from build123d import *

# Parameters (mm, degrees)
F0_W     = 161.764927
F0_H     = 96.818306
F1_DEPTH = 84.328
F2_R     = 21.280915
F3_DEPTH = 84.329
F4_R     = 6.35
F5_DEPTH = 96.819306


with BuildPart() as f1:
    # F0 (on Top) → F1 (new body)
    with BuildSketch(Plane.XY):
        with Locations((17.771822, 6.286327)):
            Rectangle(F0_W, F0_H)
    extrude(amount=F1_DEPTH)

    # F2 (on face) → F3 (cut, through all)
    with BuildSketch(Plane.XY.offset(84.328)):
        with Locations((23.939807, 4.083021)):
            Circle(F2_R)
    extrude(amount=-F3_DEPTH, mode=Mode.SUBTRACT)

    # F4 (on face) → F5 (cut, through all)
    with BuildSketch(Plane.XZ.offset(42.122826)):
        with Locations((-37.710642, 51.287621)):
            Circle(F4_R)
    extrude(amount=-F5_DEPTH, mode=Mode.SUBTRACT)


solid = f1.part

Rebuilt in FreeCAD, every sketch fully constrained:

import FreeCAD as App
import Part
import Sketcher
Q = App.Units.Quantity


def add_polygon(sketch, points):
    """Adds a closed chain of lines whose ends are joined by coincident constraints."""
    first, n = sketch.GeometryCount, len(points)
    for a, b in zip(points, points[1:] + points[:1]):
        sketch.addGeometry(Part.LineSegment(App.Vector(*a, 0), App.Vector(*b, 0)), False)
    for i in range(n):
        sketch.addConstraint(Sketcher.Constraint("Coincident", first + i, 2, first + (i + 1) % n, 1))

doc = App.newDocument("Part")
body = doc.addObject("PartDesign::Body", "Body")

sketch1 = body.newObject("Sketcher::SketchObject", "Sketch")
sketch1.AttachmentSupport = (doc.getObject("XY_Plane"), [""])
sketch1.MapMode = "FlatFace"
add_polygon(sketch1, [(-63, 55), (-63, -42), (99, -42), (99, 55)])
sketch1.addConstraint([
    Sketcher.Constraint("Vertical", 0),
    Sketcher.Constraint("Horizontal", 1),
    Sketcher.Constraint("Vertical", 2),
    Sketcher.Constraint("Horizontal", 3),
    Sketcher.Constraint("DistanceX", 1, 1, 1, 2, 161.764927),
    Sketcher.Constraint("DistanceY", 0, 2, 0, 1, 96.818306),
    Sketcher.Constraint("DistanceX", 0, 2, -1, 1, 63.110641),
    Sketcher.Constraint("DistanceY", -1, 1, 2, 2, 54.69548),
])
pad1 = body.newObject("PartDesign::Pad", "Pad")
pad1.Profile = sketch1
pad1.Length = Q("3.32 in")

sketch2 = body.newObject("Sketcher::SketchObject", "Sketch001")
sketch2.AttachmentSupport = (doc.getObject("XY_Plane"), [""])
sketch2.MapMode = "FlatFace"
sketch2.AttachmentOffset = App.Placement(App.Vector(0, 0, 3.32 * 25.4), App.Rotation())
sketch2.addGeometry(Part.Circle(App.Vector(24, 4, 0), App.Vector(0, 0, 1), 21), False)
sketch2.addConstraint([
    Sketcher.Constraint("Diameter", 0, 42.56183),
    Sketcher.Constraint("DistanceY", -1, 1, 0, 3, 4.083021),
    Sketcher.Constraint("DistanceX", -1, 1, 0, 3, 23.939807),
])
pocket1 = body.newObject("PartDesign::Pocket", "Pocket")
pocket1.Profile = sketch2
pocket1.Type = "ThroughAll"

sketch3 = body.newObject("Sketcher::SketchObject", "Sketch002")
sketch3.AttachmentSupport = (doc.getObject("XZ_Plane"), [""])
sketch3.MapMode = "FlatFace"
sketch3.AttachmentOffset = App.Placement(App.Vector(0, 0, 42.122826), App.Rotation())
sketch3.addGeometry(Part.Circle(App.Vector(-38, 51, 0), App.Vector(0, 0, 1), 6), False)
sketch3.addConstraint([
    Sketcher.Constraint("Diameter", 0, Q("0.5 in")),
    Sketcher.Constraint("DistanceY", -1, 1, 0, 3, 51.287621),
    Sketcher.Constraint("DistanceX", 0, 3, -1, 1, 37.710642),
])
pocket2 = body.newObject("PartDesign::Pocket", "Pocket001")
pocket2.Profile = sketch3
pocket2.Type = "ThroughAll"

doc.recompute()
